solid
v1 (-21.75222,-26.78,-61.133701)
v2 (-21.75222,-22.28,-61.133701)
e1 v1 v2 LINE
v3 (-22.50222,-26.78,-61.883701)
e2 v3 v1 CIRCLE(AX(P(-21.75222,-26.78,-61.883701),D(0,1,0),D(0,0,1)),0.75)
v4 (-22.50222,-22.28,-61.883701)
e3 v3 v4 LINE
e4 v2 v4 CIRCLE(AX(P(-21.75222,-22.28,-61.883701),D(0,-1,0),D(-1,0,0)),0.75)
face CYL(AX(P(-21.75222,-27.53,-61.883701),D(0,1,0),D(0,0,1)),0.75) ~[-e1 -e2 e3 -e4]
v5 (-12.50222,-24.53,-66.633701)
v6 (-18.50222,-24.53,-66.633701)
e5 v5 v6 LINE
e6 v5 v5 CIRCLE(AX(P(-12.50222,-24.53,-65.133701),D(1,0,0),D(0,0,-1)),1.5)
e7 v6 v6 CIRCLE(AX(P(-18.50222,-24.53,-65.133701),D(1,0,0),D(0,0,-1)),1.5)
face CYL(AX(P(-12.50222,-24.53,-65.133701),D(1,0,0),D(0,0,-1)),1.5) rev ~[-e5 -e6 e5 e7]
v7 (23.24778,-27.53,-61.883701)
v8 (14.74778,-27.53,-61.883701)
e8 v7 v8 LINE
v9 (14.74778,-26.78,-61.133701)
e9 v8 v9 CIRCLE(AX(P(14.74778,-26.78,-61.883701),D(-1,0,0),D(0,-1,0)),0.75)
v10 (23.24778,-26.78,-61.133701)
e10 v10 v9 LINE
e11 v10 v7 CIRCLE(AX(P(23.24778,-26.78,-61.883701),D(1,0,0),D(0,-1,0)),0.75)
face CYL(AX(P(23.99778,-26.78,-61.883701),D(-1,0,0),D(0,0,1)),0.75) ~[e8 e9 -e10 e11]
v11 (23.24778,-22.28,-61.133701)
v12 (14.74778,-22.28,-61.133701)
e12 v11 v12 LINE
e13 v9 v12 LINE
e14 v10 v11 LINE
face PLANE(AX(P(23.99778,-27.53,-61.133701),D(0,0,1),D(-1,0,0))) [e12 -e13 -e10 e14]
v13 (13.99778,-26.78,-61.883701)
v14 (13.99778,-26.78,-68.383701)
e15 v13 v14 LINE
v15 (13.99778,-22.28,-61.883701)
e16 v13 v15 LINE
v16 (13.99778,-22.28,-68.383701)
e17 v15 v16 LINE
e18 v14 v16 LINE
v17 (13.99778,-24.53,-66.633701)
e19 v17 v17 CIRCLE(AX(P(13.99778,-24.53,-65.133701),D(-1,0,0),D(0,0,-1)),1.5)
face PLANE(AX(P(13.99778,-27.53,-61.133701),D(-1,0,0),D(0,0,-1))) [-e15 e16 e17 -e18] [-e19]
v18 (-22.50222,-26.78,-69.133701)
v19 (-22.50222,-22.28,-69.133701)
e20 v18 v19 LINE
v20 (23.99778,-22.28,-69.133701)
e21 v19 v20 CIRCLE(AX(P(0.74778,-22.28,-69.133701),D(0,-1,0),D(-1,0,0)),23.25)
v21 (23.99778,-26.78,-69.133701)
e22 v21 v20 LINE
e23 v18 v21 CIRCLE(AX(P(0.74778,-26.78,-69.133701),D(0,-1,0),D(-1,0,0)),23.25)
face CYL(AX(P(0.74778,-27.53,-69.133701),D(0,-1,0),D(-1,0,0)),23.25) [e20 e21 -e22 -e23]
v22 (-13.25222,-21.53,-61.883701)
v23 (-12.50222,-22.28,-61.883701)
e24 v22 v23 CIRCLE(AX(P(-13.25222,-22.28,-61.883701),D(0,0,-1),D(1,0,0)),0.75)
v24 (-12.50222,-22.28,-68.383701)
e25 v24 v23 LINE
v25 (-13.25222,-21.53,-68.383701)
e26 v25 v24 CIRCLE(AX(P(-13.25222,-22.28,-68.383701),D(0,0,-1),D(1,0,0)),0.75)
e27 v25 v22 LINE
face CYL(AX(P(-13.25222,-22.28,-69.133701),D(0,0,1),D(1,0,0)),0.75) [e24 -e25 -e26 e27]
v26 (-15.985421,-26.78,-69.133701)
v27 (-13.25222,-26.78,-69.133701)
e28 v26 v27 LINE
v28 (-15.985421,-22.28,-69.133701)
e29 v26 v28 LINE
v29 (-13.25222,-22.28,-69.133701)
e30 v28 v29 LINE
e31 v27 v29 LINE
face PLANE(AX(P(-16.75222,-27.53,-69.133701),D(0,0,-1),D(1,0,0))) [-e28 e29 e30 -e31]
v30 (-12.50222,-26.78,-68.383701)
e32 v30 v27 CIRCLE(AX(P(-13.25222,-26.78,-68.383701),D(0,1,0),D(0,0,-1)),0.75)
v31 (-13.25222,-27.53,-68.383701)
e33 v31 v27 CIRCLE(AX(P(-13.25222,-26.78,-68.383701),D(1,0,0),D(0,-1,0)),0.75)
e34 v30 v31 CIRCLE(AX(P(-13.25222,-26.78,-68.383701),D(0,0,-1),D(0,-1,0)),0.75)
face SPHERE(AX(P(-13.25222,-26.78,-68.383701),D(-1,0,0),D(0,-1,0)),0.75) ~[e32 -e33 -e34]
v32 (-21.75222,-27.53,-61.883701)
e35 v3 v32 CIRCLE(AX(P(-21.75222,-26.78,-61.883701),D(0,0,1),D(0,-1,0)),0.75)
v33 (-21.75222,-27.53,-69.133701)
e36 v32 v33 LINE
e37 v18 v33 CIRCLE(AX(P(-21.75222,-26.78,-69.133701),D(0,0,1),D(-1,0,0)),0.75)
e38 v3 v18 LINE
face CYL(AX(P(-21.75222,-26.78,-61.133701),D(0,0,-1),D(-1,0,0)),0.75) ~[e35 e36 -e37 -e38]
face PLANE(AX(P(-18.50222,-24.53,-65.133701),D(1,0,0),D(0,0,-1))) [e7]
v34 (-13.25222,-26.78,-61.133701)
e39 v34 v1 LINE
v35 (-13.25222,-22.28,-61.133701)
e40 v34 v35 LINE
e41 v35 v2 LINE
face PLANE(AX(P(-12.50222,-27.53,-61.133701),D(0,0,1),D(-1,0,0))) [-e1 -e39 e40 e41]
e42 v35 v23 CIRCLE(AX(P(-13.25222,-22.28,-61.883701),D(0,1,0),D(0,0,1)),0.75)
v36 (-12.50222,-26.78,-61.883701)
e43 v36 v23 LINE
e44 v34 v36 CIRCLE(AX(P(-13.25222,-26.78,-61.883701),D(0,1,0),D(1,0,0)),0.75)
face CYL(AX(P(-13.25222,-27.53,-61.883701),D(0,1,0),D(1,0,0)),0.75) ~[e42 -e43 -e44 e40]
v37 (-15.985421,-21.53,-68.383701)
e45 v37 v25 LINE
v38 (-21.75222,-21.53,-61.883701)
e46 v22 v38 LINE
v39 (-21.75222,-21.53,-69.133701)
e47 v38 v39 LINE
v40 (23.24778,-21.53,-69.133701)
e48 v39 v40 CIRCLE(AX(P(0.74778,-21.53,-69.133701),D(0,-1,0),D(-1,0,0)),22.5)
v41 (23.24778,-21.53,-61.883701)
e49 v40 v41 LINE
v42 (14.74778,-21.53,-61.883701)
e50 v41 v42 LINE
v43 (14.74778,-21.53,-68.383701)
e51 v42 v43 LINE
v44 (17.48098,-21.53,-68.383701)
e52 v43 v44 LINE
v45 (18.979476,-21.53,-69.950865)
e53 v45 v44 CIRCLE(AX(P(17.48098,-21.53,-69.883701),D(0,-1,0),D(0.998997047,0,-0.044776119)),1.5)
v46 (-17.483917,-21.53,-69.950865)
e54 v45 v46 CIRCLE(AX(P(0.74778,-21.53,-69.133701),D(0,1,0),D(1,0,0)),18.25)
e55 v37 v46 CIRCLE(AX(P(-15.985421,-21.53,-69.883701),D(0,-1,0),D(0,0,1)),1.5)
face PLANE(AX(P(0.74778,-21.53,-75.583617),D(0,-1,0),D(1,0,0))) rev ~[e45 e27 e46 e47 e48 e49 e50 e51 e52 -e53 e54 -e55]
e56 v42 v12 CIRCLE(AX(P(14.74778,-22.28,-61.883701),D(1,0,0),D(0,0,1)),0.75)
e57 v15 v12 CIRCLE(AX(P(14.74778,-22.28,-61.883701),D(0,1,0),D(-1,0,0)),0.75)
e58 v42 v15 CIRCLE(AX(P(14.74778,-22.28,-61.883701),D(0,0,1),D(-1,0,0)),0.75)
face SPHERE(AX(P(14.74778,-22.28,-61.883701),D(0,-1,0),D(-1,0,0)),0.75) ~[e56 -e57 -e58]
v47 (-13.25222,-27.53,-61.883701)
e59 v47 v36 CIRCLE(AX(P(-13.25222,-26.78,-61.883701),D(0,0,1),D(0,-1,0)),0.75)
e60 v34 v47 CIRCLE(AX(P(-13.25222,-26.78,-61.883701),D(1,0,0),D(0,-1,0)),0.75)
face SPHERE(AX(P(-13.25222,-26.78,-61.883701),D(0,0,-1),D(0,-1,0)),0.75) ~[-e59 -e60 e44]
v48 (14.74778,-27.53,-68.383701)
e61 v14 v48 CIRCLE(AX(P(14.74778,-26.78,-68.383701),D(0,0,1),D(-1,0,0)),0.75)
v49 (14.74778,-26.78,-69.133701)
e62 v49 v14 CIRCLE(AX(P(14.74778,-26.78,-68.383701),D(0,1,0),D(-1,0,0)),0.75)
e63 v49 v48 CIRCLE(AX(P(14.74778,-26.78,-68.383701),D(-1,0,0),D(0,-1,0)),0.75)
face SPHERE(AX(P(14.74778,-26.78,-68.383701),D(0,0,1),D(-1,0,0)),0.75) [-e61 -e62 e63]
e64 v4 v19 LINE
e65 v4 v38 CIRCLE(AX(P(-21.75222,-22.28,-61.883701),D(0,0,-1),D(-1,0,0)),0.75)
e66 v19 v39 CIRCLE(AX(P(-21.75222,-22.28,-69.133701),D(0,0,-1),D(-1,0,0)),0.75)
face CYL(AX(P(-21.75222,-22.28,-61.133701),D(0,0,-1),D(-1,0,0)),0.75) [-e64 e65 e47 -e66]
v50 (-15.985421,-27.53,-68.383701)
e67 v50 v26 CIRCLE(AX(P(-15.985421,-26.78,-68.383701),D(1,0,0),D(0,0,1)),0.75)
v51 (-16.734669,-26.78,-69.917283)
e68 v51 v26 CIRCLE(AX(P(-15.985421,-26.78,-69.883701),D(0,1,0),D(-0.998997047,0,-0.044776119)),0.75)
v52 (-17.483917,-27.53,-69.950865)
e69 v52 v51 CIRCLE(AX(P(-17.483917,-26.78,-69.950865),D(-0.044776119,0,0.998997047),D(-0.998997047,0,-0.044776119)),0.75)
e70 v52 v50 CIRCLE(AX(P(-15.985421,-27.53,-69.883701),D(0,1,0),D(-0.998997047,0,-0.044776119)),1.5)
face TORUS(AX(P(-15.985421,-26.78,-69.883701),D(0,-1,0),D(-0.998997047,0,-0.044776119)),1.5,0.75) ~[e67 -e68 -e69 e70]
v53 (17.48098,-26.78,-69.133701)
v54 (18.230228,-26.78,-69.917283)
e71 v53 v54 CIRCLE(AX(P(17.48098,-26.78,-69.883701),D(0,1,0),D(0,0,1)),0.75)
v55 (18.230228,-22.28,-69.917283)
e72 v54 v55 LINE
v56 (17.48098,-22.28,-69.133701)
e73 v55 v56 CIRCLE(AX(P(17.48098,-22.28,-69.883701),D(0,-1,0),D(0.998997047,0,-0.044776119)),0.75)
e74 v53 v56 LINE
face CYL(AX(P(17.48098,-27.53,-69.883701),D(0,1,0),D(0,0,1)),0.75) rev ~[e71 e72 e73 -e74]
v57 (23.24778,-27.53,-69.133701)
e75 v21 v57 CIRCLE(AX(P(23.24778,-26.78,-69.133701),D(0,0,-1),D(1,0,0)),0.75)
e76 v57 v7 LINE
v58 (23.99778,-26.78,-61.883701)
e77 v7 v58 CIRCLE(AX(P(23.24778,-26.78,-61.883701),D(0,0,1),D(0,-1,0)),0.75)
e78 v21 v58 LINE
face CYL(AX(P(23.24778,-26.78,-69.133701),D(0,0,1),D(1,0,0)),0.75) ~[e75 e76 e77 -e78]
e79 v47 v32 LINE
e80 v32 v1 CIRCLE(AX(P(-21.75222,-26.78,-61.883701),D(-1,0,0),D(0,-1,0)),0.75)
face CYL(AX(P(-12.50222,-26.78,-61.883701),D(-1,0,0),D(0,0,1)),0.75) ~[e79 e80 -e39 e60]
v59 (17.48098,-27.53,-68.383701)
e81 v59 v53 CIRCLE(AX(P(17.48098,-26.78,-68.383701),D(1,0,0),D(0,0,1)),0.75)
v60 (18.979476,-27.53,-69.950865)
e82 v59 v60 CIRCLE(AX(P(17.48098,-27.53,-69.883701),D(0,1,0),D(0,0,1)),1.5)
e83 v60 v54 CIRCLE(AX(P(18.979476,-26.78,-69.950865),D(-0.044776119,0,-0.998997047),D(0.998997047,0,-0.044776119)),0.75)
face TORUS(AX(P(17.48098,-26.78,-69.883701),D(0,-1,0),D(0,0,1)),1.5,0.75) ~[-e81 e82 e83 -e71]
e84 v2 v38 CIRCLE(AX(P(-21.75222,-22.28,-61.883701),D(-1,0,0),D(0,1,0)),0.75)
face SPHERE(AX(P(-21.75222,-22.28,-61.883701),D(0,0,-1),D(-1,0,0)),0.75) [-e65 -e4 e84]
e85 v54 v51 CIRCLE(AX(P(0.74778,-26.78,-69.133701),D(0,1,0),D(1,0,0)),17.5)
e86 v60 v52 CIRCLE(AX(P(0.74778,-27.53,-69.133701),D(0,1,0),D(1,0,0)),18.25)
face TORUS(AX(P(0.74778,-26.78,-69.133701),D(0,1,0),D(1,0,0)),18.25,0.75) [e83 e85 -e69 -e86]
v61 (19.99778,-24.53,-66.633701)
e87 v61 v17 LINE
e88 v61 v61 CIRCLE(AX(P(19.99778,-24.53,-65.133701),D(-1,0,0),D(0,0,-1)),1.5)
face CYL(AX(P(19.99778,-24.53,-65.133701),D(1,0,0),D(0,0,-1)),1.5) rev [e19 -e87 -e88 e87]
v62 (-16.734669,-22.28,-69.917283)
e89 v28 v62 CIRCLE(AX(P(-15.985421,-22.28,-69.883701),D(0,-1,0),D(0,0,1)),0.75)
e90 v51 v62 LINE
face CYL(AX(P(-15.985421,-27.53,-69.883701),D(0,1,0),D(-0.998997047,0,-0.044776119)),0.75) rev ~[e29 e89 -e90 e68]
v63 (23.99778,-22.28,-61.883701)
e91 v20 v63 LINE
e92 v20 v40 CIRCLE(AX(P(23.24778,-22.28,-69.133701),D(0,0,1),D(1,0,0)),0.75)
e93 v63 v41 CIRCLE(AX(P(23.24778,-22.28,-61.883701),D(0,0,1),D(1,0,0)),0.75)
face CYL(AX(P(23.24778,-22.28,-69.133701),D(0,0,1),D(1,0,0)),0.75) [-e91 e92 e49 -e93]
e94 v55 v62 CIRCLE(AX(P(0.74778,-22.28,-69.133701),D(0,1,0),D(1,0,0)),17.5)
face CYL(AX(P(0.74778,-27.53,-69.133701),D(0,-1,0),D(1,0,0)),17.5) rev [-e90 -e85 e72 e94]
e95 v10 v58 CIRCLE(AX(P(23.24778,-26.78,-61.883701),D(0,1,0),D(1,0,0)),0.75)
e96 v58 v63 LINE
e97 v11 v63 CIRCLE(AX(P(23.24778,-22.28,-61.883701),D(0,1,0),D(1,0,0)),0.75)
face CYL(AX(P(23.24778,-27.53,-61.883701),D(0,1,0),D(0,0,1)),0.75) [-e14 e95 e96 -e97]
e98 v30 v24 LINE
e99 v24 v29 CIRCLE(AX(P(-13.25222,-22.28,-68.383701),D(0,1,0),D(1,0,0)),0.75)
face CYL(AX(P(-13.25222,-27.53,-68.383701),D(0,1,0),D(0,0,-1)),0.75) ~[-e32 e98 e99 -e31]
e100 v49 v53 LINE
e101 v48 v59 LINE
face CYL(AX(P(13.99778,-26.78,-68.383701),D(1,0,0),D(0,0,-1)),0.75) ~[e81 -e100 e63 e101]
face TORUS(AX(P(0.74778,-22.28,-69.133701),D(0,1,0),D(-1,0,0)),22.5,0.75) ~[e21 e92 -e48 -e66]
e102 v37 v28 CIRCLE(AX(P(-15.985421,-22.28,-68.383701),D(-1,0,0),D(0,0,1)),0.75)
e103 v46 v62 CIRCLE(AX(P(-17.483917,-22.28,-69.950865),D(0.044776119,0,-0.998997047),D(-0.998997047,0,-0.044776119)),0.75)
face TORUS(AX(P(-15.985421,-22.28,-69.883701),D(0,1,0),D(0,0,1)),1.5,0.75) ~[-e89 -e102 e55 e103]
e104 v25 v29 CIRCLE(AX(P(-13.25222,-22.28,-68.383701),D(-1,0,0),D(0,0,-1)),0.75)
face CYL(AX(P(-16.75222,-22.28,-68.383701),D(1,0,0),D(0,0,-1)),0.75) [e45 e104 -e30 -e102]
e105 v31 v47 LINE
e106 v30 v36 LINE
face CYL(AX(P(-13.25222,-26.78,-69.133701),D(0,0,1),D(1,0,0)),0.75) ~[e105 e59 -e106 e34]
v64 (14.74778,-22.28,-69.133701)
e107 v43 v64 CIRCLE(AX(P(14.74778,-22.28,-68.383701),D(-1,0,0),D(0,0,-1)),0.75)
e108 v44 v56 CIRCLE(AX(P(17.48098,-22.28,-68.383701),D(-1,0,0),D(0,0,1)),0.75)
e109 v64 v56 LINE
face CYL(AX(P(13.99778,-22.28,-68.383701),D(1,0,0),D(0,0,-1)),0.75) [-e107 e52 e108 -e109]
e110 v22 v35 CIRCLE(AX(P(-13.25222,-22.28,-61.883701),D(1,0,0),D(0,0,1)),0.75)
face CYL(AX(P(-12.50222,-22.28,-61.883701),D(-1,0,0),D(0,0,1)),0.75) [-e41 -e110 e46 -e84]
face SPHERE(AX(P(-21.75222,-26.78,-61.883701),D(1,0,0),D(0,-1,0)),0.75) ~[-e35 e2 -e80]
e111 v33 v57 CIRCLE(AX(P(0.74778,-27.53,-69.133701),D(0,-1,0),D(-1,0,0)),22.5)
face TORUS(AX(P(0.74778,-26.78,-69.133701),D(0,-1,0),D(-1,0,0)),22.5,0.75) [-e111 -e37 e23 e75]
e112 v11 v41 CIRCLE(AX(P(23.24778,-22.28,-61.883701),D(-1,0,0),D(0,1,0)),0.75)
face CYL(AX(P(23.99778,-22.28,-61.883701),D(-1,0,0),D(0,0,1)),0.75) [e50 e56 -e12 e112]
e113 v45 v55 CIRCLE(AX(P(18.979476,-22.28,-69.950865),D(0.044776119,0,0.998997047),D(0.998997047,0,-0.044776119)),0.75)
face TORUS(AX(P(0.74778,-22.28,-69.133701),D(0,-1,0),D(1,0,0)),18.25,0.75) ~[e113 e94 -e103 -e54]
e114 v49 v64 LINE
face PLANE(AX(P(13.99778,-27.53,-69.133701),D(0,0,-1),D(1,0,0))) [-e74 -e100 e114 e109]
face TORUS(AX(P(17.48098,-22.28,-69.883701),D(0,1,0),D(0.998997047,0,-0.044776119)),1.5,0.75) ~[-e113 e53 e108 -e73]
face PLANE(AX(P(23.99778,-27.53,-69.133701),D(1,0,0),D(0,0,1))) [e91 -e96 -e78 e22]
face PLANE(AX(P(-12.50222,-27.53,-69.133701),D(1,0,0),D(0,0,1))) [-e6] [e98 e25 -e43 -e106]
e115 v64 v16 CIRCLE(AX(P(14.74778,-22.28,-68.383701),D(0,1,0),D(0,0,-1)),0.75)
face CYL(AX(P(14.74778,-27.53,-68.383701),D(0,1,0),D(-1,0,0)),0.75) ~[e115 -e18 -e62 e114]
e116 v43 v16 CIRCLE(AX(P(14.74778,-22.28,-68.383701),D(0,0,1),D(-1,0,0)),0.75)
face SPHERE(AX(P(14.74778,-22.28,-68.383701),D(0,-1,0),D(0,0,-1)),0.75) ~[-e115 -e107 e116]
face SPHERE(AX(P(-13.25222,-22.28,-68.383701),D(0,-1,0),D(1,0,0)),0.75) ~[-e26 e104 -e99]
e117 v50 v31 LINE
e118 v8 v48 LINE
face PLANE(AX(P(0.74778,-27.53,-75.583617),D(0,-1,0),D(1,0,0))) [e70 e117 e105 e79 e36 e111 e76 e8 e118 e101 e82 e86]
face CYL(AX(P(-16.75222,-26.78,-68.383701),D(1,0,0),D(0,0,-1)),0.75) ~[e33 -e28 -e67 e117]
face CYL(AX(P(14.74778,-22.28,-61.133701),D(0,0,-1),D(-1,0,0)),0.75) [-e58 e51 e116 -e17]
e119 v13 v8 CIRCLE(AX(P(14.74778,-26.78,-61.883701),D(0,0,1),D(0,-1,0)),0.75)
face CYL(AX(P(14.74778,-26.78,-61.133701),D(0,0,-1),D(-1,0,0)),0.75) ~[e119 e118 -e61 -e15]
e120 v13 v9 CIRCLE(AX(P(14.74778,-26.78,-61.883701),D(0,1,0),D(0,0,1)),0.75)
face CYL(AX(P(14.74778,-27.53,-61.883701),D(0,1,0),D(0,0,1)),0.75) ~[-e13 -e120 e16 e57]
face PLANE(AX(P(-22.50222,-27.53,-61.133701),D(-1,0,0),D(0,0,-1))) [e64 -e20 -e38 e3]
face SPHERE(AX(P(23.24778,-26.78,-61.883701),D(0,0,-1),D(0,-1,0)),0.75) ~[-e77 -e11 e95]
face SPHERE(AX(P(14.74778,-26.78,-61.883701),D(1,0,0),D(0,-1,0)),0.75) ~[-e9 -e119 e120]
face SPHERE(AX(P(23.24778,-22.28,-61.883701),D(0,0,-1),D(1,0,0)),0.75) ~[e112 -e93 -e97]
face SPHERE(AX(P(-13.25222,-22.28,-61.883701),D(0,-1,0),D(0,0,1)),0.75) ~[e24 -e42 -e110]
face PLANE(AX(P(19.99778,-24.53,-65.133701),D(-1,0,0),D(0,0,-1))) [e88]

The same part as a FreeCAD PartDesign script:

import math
import FreeCAD as App
import Part
import Sketcher
Q = App.Units.Quantity

doc = App.newDocument("Part")
body = doc.addObject("PartDesign::Body", "Body")

sketch1 = body.newObject("Sketcher::SketchObject", "Sketch")
sketch1.AttachmentSupport = (doc.getObject("XZ_Plane"), [""])
sketch1.MapMode = "FlatFace"
sketch1.AttachmentOffset = App.Placement(App.Vector(0, 0, 27.53), App.Rotation())
sketch1.addGeometry([
    Part.LineSegment(App.Vector(13.99778, -61.133701, 0), App.Vector(23.99778, -61.133701, 0)),
    Part.LineSegment(App.Vector(23.99778, -61.133701, 0), App.Vector(23.99778, -69.133701, 0)),
    Part.ArcOfCircle(Part.Circle(App.Vector(0.74778, -69.133701, 0), App.Vector(0, 0, 1), 23.25), math.radians(180), math.radians(360)),
    Part.LineSegment(App.Vector(-22.50222, -69.133701, 0), App.Vector(-22.50222, -61.133701, 0)),
    Part.LineSegment(App.Vector(-22.50222, -61.133701, 0), App.Vector(-12.50222, -61.133701, 0)),
    Part.LineSegment(App.Vector(-12.50222, -61.133701, 0), App.Vector(-12.50222, -69.133701, 0)),
    Part.LineSegment(App.Vector(-12.50222, -69.133701, 0), App.Vector(-16.75222, -69.133701, 0)),
    Part.ArcOfCircle(Part.Circle(App.Vector(0.74778, -69.133701, 0), App.Vector(0, 0, 1), 17.5), math.radians(180), math.radians(360)),
    Part.LineSegment(App.Vector(18.24778, -69.133701, 0), App.Vector(13.99778, -69.133701, 0)),
    Part.LineSegment(App.Vector(13.99778, -69.133701, 0), App.Vector(13.99778, -61.133701, 0)),
], False)
sketch1.addConstraint([
    Sketcher.Constraint("Coincident", 0, 2, 1, 1),
    Sketcher.Constraint("Tangent", 1, 2, 2, 2),
    Sketcher.Constraint("Tangent", 2, 1, 3, 1),
    Sketcher.Constraint("Coincident", 3, 2, 4, 1),
    Sketcher.Constraint("Coincident", 4, 2, 5, 1),
    Sketcher.Constraint("Coincident", 5, 2, 6, 1),
    Sketcher.Constraint("Coincident", 6, 2, 7, 1),
    Sketcher.Constraint("Coincident", 7, 2, 8, 1),
    Sketcher.Constraint("Coincident", 8, 2, 9, 1),
    Sketcher.Constraint("Coincident", 9, 2, 0, 1),
    Sketcher.Constraint("Horizontal", 0),
    Sketcher.Constraint("Vertical", 1),
    Sketcher.Constraint("Vertical", 3),
    Sketcher.Constraint("Horizontal", 4),
    Sketcher.Constraint("Vertical", 5),
    Sketcher.Constraint("Horizontal", 6),
    Sketcher.Constraint("Horizontal", 8),
    Sketcher.Constraint("Vertical", 9),
    Sketcher.Constraint("Coincident", 7, 3, 2, 3),
    Sketcher.Constraint("Horizontal", 0, 2, 3, 2),
    Sketcher.Constraint("Horizontal", 2, 1, 5, 2),
    Sketcher.Constraint("Horizontal", 6, 2, 7, 2),
    Sketcher.Constraint("Equal", 0, 4),
    Sketcher.Constraint("Radius", 7, Q("17.5 mm")),
    Sketcher.Constraint("DistanceX", 0, 1, 0, 2, Q("10 mm")),
    Sketcher.Constraint("DistanceY", 1, 2, 1, 1, Q("8 mm")),
    Sketcher.Constraint("Radius", 2, Q("23.25 mm")),
    Sketcher.Constraint("DistanceY", 2, 3, -1, 1, Q("69.133701 mm")),
    Sketcher.Constraint("DistanceX", -1, 1, 2, 3, Q("0.74778 mm")),
])
pad1 = body.newObject("PartDesign::Pad", "Pad")
pad1.Profile = sketch1
pad1.Length = 6
pad1.Reversed = True
doc.recompute()

fillet = body.newObject("PartDesign::Fillet", "Fillet")
fillet.Base = (pad1, ["Edge1"])
fillet.UseAllEdges = True
fillet.Radius = 0.75

sketch2 = body.newObject("Sketcher::SketchObject", "Sketch001")
sketch2.AttachmentSupport = (doc.getObject("YZ_Plane"), [""])
sketch2.MapMode = "FlatFace"
sketch2.AttachmentOffset = App.Placement(App.Vector(0, 0, -12.50222), App.Rotation())
sketch2.addGeometry(Part.Circle(App.Vector(-24.53, -65.133701, 0), App.Vector(0, 0, 1), 1.5), False)
sketch2.addConstraint([
    Sketcher.Constraint("Diameter", 0, Q("3 mm")),
    Sketcher.Constraint("DistanceX", 0, 3, -1, 1, Q("24.53 mm")),
    Sketcher.Constraint("DistanceY", 0, 3, -1, 1, Q("65.133701 mm")),
])
pocket1 = body.newObject("PartDesign::Pocket", "Pocket")
pocket1.Profile = sketch2
pocket1.Length = 6

sketch3 = body.newObject("Sketcher::SketchObject", "Sketch002")
sketch3.AttachmentSupport = (doc.getObject("YZ_Plane"), [""])
sketch3.MapMode = "FlatFace"
sketch3.AttachmentOffset = App.Placement(App.Vector(0, 0, 19.99778), App.Rotation())
sketch3.addGeometry(Part.Circle(App.Vector(-24.53, -65.133701, 0), App.Vector(0, 0, 1), 1.5), False)
sketch3.addConstraint([
    Sketcher.Constraint("Diameter", 0, Q("3 mm")),
    Sketcher.Constraint("DistanceX", 0, 3, -1, 1, Q("24.53 mm")),
    Sketcher.Constraint("DistanceY", 0, 3, -1, 1, Q("65.133701 mm")),
])
pocket2 = body.newObject("PartDesign::Pocket", "Pocket001")
pocket2.Profile = sketch3
pocket2.Length = 6

doc.recompute()
